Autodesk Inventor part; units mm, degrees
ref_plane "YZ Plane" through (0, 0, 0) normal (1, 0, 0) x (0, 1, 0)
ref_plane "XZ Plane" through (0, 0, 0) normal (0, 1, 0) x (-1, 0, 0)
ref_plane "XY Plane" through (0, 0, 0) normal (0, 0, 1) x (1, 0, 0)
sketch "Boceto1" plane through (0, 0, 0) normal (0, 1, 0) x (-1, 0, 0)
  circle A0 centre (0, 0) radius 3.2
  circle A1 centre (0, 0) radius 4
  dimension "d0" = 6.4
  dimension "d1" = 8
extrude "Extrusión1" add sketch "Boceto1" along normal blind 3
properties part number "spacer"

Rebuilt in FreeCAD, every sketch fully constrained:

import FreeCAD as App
import Part
import Sketcher

V = App.Vector
Q = App.Units.Quantity

doc = App.newDocument("Part")
body = doc.addObject("PartDesign::Body", "Body")

sketch1 = body.newObject("Sketcher::SketchObject", "Sketch")
sketch1.AttachmentSupport = (doc.getObject("XZ_Plane"), [""])
sketch1.MapMode = "FlatFace"
sketch1.addGeometry(Part.Circle(V(0, 0, 0), V(0, 0, 1), 4), False)
sketch1.addGeometry(Part.Circle(V(0, 0, 0), V(0, 0, 1), 3.2), False)
sketch1.addConstraint(Sketcher.Constraint("Coincident", 0, 3, -1, 1))
sketch1.addConstraint(Sketcher.Constraint("Coincident", 1, 3, -1, 1))
sketch1.addConstraint(Sketcher.Constraint("Diameter", 0, Q("8 mm")))
sketch1.addConstraint(Sketcher.Constraint("Diameter", 1, Q("6.4 mm")))
pad1 = body.newObject("PartDesign::Pad", "Pad")
pad1.Profile = sketch1
pad1.Length = 3
pad1.Reversed = True

doc.recompute()
